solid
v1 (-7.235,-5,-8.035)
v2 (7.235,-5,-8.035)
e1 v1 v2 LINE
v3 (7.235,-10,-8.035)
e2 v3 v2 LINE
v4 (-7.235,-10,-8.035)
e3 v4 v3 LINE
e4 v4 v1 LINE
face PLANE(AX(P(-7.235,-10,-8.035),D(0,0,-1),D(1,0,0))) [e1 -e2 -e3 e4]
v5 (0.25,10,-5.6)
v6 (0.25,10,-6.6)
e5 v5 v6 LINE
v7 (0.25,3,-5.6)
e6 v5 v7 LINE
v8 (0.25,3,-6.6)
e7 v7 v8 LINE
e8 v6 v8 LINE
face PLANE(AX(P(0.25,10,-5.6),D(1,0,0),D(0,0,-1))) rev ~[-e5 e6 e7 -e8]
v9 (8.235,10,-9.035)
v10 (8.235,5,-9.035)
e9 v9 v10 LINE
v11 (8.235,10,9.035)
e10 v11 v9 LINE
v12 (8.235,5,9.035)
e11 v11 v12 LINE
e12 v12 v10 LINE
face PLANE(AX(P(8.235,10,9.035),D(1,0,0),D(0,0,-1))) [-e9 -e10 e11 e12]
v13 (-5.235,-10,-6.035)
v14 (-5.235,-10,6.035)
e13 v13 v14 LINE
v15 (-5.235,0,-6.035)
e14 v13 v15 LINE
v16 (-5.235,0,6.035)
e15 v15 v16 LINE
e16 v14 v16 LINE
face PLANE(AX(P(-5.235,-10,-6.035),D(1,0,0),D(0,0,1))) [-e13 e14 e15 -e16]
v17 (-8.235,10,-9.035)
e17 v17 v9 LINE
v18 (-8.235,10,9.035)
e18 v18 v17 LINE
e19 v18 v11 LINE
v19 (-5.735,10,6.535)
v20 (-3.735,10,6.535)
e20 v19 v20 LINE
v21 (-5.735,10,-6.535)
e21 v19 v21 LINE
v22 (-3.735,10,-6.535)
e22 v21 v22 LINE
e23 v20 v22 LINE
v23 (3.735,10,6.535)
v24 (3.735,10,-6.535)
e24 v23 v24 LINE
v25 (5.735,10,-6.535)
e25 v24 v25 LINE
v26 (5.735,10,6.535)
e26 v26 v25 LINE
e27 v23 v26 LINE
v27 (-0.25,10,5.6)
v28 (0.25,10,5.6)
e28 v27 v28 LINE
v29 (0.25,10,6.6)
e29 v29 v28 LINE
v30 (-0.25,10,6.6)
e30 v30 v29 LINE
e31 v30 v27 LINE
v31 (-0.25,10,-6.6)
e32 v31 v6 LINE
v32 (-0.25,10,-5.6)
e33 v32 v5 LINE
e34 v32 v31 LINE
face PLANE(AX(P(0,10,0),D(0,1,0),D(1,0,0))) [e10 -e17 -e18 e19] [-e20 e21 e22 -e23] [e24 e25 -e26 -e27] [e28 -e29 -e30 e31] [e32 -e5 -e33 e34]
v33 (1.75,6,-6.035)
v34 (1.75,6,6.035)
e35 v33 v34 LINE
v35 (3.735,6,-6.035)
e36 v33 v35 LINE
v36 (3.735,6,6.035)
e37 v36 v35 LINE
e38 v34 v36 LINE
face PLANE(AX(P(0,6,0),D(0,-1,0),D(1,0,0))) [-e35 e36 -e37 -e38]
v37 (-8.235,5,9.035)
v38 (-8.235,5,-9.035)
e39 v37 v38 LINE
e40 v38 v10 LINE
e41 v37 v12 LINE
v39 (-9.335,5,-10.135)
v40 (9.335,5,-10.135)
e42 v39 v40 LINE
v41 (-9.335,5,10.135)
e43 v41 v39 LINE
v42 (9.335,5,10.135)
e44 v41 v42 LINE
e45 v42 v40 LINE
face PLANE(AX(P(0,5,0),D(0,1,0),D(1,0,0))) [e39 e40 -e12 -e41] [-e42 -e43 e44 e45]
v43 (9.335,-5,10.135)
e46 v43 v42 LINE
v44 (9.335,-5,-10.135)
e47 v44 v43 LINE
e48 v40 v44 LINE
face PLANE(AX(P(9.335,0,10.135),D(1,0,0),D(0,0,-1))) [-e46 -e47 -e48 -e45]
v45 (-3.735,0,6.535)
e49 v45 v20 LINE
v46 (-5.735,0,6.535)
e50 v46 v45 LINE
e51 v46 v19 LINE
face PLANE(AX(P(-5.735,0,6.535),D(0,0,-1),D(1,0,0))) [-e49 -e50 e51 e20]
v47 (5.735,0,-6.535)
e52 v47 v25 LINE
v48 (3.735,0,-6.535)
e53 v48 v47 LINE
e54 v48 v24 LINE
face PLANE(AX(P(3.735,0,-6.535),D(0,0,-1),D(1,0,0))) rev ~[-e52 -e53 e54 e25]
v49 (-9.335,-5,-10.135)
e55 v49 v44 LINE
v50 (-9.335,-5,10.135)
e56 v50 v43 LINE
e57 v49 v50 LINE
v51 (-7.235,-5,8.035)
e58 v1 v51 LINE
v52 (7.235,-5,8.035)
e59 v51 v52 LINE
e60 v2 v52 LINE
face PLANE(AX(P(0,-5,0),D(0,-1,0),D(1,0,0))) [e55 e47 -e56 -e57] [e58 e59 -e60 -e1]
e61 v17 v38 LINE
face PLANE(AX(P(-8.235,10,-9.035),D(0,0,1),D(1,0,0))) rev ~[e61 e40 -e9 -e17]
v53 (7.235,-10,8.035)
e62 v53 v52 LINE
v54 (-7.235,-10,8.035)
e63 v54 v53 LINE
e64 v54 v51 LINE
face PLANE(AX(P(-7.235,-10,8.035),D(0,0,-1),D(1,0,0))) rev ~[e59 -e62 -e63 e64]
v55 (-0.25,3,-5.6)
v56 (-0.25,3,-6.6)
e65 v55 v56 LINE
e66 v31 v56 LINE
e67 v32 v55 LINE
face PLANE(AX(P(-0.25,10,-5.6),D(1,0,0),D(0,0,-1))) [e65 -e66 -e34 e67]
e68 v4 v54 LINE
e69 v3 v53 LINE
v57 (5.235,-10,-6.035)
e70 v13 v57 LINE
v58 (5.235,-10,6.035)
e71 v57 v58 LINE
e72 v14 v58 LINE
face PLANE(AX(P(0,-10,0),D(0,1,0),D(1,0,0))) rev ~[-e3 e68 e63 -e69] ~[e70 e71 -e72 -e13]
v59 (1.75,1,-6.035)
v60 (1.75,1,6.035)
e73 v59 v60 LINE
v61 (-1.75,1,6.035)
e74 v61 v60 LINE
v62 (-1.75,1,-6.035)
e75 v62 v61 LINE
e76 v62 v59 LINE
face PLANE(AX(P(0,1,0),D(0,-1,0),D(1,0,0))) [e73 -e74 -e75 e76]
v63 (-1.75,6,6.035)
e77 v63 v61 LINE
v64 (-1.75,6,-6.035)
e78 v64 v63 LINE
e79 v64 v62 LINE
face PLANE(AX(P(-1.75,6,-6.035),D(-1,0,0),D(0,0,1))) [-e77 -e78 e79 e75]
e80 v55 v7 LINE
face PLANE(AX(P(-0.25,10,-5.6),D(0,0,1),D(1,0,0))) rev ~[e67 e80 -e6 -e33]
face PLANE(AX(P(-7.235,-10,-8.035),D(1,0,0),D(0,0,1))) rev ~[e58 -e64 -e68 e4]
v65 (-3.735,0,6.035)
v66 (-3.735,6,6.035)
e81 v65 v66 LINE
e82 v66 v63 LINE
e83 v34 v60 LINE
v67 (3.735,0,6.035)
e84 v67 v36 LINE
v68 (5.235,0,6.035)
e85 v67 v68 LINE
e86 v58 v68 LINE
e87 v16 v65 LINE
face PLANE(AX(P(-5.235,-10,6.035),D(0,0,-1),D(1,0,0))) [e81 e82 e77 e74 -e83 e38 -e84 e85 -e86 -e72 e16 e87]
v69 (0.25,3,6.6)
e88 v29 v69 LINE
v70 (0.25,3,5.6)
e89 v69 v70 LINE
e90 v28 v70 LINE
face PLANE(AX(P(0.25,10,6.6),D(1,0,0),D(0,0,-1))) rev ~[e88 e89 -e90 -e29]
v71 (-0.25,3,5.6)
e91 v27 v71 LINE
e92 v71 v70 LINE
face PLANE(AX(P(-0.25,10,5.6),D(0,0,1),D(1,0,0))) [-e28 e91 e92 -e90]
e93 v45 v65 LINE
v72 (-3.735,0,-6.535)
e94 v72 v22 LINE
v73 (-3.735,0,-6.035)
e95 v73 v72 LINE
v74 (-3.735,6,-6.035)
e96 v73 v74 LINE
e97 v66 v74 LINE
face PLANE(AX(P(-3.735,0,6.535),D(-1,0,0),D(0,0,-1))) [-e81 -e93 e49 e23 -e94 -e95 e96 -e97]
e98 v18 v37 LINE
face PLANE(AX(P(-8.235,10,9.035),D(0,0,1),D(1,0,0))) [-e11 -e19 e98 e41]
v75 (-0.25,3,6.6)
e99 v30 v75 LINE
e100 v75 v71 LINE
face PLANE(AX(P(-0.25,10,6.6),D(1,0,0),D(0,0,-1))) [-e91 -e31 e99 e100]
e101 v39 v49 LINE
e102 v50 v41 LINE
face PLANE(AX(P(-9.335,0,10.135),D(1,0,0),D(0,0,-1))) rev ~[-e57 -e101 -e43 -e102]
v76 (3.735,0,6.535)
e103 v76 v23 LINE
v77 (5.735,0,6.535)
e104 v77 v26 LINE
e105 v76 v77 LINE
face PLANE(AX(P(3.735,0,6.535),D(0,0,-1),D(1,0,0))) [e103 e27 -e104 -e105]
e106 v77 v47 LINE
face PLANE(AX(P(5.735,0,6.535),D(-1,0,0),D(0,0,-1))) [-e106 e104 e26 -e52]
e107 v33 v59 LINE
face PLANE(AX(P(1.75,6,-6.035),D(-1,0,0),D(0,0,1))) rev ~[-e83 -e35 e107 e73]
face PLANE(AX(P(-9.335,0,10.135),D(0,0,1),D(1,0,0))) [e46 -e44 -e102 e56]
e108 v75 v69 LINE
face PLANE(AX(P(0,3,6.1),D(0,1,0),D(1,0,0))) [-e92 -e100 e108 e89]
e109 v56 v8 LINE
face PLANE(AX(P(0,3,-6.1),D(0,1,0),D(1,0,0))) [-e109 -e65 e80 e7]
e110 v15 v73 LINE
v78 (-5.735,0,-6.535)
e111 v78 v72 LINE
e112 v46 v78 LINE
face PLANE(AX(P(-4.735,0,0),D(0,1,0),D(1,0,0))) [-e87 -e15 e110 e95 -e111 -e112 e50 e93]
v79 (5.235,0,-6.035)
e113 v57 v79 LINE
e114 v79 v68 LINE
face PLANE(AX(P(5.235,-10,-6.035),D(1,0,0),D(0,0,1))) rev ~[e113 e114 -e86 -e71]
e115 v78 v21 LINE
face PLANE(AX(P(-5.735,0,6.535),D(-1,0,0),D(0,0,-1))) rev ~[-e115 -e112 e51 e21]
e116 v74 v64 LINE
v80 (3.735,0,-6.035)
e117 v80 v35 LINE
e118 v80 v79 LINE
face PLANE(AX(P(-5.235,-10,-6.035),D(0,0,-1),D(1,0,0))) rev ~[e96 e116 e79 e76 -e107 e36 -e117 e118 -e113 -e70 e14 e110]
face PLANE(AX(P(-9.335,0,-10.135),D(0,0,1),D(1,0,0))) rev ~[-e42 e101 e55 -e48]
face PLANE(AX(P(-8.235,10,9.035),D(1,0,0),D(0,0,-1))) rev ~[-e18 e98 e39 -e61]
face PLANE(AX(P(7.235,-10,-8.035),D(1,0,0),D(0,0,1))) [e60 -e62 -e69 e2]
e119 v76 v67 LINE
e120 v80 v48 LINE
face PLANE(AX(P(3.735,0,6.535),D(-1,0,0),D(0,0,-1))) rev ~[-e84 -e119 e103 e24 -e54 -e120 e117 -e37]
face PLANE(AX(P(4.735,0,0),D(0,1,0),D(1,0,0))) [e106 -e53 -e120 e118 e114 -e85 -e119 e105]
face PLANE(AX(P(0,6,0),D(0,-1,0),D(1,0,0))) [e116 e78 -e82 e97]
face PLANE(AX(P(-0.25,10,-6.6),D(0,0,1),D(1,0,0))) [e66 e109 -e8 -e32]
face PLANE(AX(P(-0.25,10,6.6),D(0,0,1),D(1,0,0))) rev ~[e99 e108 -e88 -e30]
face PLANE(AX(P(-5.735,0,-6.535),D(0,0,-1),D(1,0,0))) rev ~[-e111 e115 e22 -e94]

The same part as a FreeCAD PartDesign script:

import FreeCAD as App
import Part
import Sketcher

V = App.Vector
Q = App.Units.Quantity


def add_polygon(sketch, points):
    """Adds a closed chain of lines whose ends are joined by coincident constraints."""
    first, n = sketch.GeometryCount, len(points)
    for a, b in zip(points, points[1:] + points[:1]):
        sketch.addGeometry(Part.LineSegment(App.Vector(*a, 0), App.Vector(*b, 0)), False)
    for i in range(n):
        sketch.addConstraint(Sketcher.Constraint("Coincident", first + i, 2, first + (i + 1) % n, 1))

doc = App.newDocument("Part")
params = doc.addObject("Spreadsheet::Sheet", "Params")
for row, (alias, value) in enumerate([
    ("sketch1_width", "18.67 mm"),
    ("sketch1_height", "20.27 mm"),
    ("pad1_length", "20 mm"),
    ("sketch2_width", "18.67 mm"),
    ("sketch2_width2", "16.47 mm"),
    ("sketch2_height", "20.27 mm"),
    ("sketch2_height2", "18.07 mm"),
    ("pocket1_length", "5 mm"),
    ("sketch3_width", "18.67 mm"),
    ("sketch3_width2", "14.47 mm"),
    ("sketch3_height", "20.27 mm"),
    ("sketch3_height2", "16.07 mm"),
    ("pocket2_length", "5 mm"),
    ("sketch4_width", "10.47 mm"),
    ("sketch4_height", "12.07 mm"),
    ("pocket3_length", "16 mm"),
    ("sketch5_width", "2 mm"),
    ("sketch5_height", "13.07 mm"),
    ("pocket4_length", "10 mm"),
    ("sketch6_width", "3.5 mm"),
    ("sketch6_height", "12.07 mm"),
    ("pad2_length", "5 mm"),
    ("sketch7_height", "1 mm"),
    ("sketch7_width", "0.5 mm"),
    ("pocket5_length", "7 mm"),
], start=1):
    params.set(f"A{row}", alias)
    params.set(f"B{row}", "=" + value)
    params.setAlias(f"B{row}", alias)

body = doc.addObject("PartDesign::Body", "Body")

# Sketch on XZ plane
sketch1 = body.newObject("Sketcher::SketchObject", "Sketch")
sketch1.AttachmentSupport = (doc.getObject("XZ_Plane"), [""])
sketch1.MapMode = "FlatFace"
add_polygon(sketch1, [(-9, -10), (-9, 10), (9, 10), (9, -10)])  # lines 0-3
sketch1.addConstraint([
    Sketcher.Constraint("Vertical", 0),
    Sketcher.Constraint("Horizontal", 1),
    Sketcher.Constraint("Vertical", 2),
    Sketcher.Constraint("Horizontal", 3),
    Sketcher.Constraint("Symmetric", 0, 2, 2, 2, -1, 1),
    Sketcher.Constraint("DistanceX", 1, 1, 1, 2, Q("18.67 mm")),
    Sketcher.Constraint("DistanceY", 0, 1, 0, 2, Q("20.27 mm")),
])
sketch1.setExpression("Constraints[9]", "Params.sketch1_width")
sketch1.setExpression("Constraints[10]", "Params.sketch1_height")
pad1 = body.newObject("PartDesign::Pad", "Pad")
pad1.Profile = sketch1
pad1.setExpression("Length", "Params.pad1_length")
pad1.Midplane = True

# Sketch on XZ plane
sketch2 = body.newObject("Sketcher::SketchObject", "Sketch001")
sketch2.AttachmentSupport = (doc.getObject("XZ_Plane"), [""])
sketch2.MapMode = "FlatFace"
sketch2.AttachmentOffset = App.Placement(V(0, 0, -10), App.Rotation())
add_polygon(sketch2, [(-9, -10), (-9, 10), (9, 10), (9, -10)])  # lines 0-3
add_polygon(sketch2, [(8, 9), (-8, 9), (-8, -9), (8, -9)])  # lines 4-7
sketch2.addConstraint([
    Sketcher.Constraint("Vertical", 0),
    Sketcher.Constraint("Horizontal", 1),
    Sketcher.Constraint("Vertical", 2),
    Sketcher.Constraint("Horizontal", 3),
    Sketcher.Constraint("Horizontal", 4),
    Sketcher.Constraint("Vertical", 5),
    Sketcher.Constraint("Horizontal", 6),
    Sketcher.Constraint("Vertical", 7),
    Sketcher.Constraint("Symmetric", 0, 2, 2, 2, -1, 1),
    Sketcher.Constraint("Symmetric", 4, 2, 6, 2, -1, 1),
    Sketcher.Constraint("DistanceX", 1, 1, 1, 2, Q("18.67 mm")),
    Sketcher.Constraint("DistanceX", 4, 2, 4, 1, Q("16.47 mm")),
    Sketcher.Constraint("DistanceY", 0, 1, 0, 2, Q("20.27 mm")),
    Sketcher.Constraint("DistanceY", 5, 2, 5, 1, Q("18.07 mm")),
])
sketch2.setExpression("Constraints[18]", "Params.sketch2_width")
sketch2.setExpression("Constraints[19]", "Params.sketch2_width2")
sketch2.setExpression("Constraints[20]", "Params.sketch2_height")
sketch2.setExpression("Constraints[21]", "Params.sketch2_height2")
pocket1 = body.newObject("PartDesign::Pocket", "Pocket")
pocket1.Profile = sketch2
pocket1.setExpression("Length", "Params.pocket1_length")
pocket1.Reversed = True

# Sketch on XZ plane
sketch3 = body.newObject("Sketcher::SketchObject", "Sketch002")
sketch3.AttachmentSupport = (doc.getObject("XZ_Plane"), [""])
sketch3.MapMode = "FlatFace"
sketch3.AttachmentOffset = App.Placement(V(0, 0, 10), App.Rotation())
add_polygon(sketch3, [(-9, 10), (-9, -10), (9, -10), (9, 10)])  # lines 0-3
add_polygon(sketch3, [(7, -8), (-7, -8), (-7, 8), (7, 8)])  # lines 4-7
sketch3.addConstraint([
    Sketcher.Constraint("Vertical", 0),
    Sketcher.Constraint("Horizontal", 1),
    Sketcher.Constraint("Vertical", 2),
    Sketcher.Constraint("Horizontal", 3),
    Sketcher.Constraint("Horizontal", 4),
    Sketcher.Constraint("Vertical", 5),
    Sketcher.Constraint("Horizontal", 6),
    Sketcher.Constraint("Vertical", 7),
    Sketcher.Constraint("Symmetric", 0, 2, 2, 2, -1, 1),
    Sketcher.Constraint("Symmetric", 4, 2, 6, 2, -1, 1),
    Sketcher.Constraint("DistanceX", 1, 1, 1, 2, Q("18.67 mm")),
    Sketcher.Constraint("DistanceX", 4, 2, 4, 1, Q("14.47 mm")),
    Sketcher.Constraint("DistanceY", 0, 2, 0, 1, Q("20.27 mm")),
    Sketcher.Constraint("DistanceY", 5, 1, 5, 2, Q("16.07 mm")),
])
sketch3.setExpression("Constraints[18]", "Params.sketch3_width")
sketch3.setExpression("Constraints[19]", "Params.sketch3_width2")
sketch3.setExpression("Constraints[20]", "Params.sketch3_height")
sketch3.setExpression("Constraints[21]", "Params.sketch3_height2")
pocket2 = body.newObject("PartDesign::Pocket", "Pocket001")
pocket2.Profile = sketch3
pocket2.setExpression("Length", "Params.pocket2_length")

# Sketch on XZ plane
sketch4 = body.newObject("Sketcher::SketchObject", "Sketch003")
sketch4.AttachmentSupport = (doc.getObject("XZ_Plane"), [""])
sketch4.MapMode = "FlatFace"
sketch4.AttachmentOffset = App.Placement(V(0, 0, 10), App.Rotation())
add_polygon(sketch4, [(-5, 6), (-5, -6), (5, -6), (5, 6)])  # lines 0-3
sketch4.addConstraint([
    Sketcher.Constraint("Vertical", 0),
    Sketcher.Constraint("Horizontal", 1),
    Sketcher.Constraint("Vertical", 2),
    Sketcher.Constraint("Horizontal", 3),
    Sketcher.Constraint("Symmetric", 0, 2, 2, 2, -1, 1),
    Sketcher.Constraint("DistanceX", 1, 1, 1, 2, Q("10.47 mm")),
    Sketcher.Constraint("DistanceY", 0, 2, 0, 1, Q("12.07 mm")),
])
sketch4.setExpression("Constraints[9]", "Params.sketch4_width")
sketch4.setExpression("Constraints[10]", "Params.sketch4_height")
pocket3 = body.newObject("PartDesign::Pocket", "Pocket002")
pocket3.Profile = sketch4
pocket3.setExpression("Length", "Params.pocket3_length")

# Sketch on XZ plane
sketch5 = body.newObject("Sketcher::SketchObject", "Sketch004")
sketch5.AttachmentSupport = (doc.getObject("XZ_Plane"), [""])
sketch5.MapMode = "FlatFace"
add_polygon(sketch5, [(-5.7, -6.5), (-5.7, 6.5), (-3.7, 6.5), (-3.7, -6.5)])  # lines 0-3
add_polygon(sketch5, [(3.7, -6.5), (3.7, 6.5), (5.7, 6.5), (5.7, -6.5)])  # lines 4-7
sketch5.addConstraint([
    Sketcher.Constraint("Vertical", 0),
    Sketcher.Constraint("Horizontal", 1),
    Sketcher.Constraint("Vertical", 2),
    Sketcher.Constraint("Horizontal", 3),
    Sketcher.Constraint("Vertical", 4),
    Sketcher.Constraint("Horizontal", 5),
    Sketcher.Constraint("Vertical", 6),
    Sketcher.Constraint("Horizontal", 7),
    Sketcher.Constraint("Symmetric", 2, 2, 4, 2, -1, 1),
    Sketcher.Constraint("Symmetric", 0, 2, 6, 2, -1, 1),
    Sketcher.Constraint("Horizontal", 1, 2, 4, 2),
    Sketcher.Constraint("DistanceX", 1, 1, 1, 2, Q("2 mm")),
    Sketcher.Constraint("DistanceY", 0, 1, 0, 2, Q("13.07 mm")),
    Sketcher.Constraint("DistanceX", 1, 2, 4, 2, Q("7.47 mm")),
])
sketch5.setExpression("Constraints[19]", "Params.sketch5_width")
sketch5.setExpression("Constraints[20]", "Params.sketch5_height")
pocket4 = body.newObject("PartDesign::Pocket", "Pocket003")
pocket4.Profile = sketch5
pocket4.setExpression("Length", "Params.pocket4_length")

# Sketch on XZ plane
sketch6 = body.newObject("Sketcher::SketchObject", "Sketch005")
sketch6.AttachmentSupport = (doc.getObject("XZ_Plane"), [""])
sketch6.MapMode = "FlatFace"
sketch6.AttachmentOffset = App.Placement(V(0, 0, -6), App.Rotation())
add_polygon(sketch6, [(-1.8, 6), (-1.8, -6), (1.8, -6), (1.8, 6)])  # lines 0-3
sketch6.addConstraint([
    Sketcher.Constraint("Vertical", 0),
    Sketcher.Constraint("Horizontal", 1),
    Sketcher.Constraint("Vertical", 2),
    Sketcher.Constraint("Horizontal", 3),
    Sketcher.Constraint("Symmetric", 0, 2, 2, 2, -1, 1),
    Sketcher.Constraint("DistanceX", 1, 1, 1, 2, Q("3.5 mm")),
    Sketcher.Constraint("DistanceY", 0, 2, 0, 1, Q("12.07 mm")),
])
sketch6.setExpression("Constraints[9]", "Params.sketch6_width")
sketch6.setExpression("Constraints[10]", "Params.sketch6_height")
pad2 = body.newObject("PartDesign::Pad", "Pad001")
pad2.Profile = sketch6
pad2.setExpression("Length", "Params.pad2_length")

# Sketch on XZ plane
sketch7 = body.newObject("Sketcher::SketchObject", "Sketch006")
sketch7.AttachmentSupport = (doc.getObject("XZ_Plane"), [""])
sketch7.MapMode = "FlatFace"
sketch7.AttachmentOffset = App.Placement(V(0, 0, -10), App.Rotation())
add_polygon(sketch7, [(-0.2, 5.6), (-0.2, 6.6), (0.2, 6.6), (0.2, 5.6)])  # lines 0-3
add_polygon(sketch7, [(-0.2, -6.6), (-0.2, -5.6), (0.2, -5.6), (0.2, -6.6)])  # lines 4-7
sketch7.addConstraint([
    Sketcher.Constraint("Vertical", 0),
    Sketcher.Constraint("Horizontal", 1),
    Sketcher.Constraint("Vertical", 2),
    Sketcher.Constraint("Horizontal", 3),
    Sketcher.Constraint("Vertical", 4),
    Sketcher.Constraint("Horizontal", 5),
    Sketcher.Constraint("Vertical", 6),
    Sketcher.Constraint("Horizontal", 7),
    Sketcher.Constraint("Symmetric", 2, 2, 4, 2, -1, 1),
    Sketcher.Constraint("Symmetric", 0, 2, 6, 2, -1, 1),
    Sketcher.Constraint("Vertical", 3, 2, 4, 2),
    Sketcher.Constraint("DistanceY", 0, 1, 0, 2, Q("1 mm")),
    Sketcher.Constraint("DistanceX", 1, 1, 1, 2, Q("0.5 mm")),
    Sketcher.Constraint("DistanceY", -1, 1, 0, 2, Q("6.6 mm")),
])
sketch7.setExpression("Constraints[19]", "Params.sketch7_height")
sketch7.setExpression("Constraints[20]", "Params.sketch7_width")
pocket5 = body.newObject("PartDesign::Pocket", "Pocket004")
pocket5.Profile = sketch7
pocket5.setExpression("Length", "Params.pocket5_length")
pocket5.Reversed = True

doc.recompute()
